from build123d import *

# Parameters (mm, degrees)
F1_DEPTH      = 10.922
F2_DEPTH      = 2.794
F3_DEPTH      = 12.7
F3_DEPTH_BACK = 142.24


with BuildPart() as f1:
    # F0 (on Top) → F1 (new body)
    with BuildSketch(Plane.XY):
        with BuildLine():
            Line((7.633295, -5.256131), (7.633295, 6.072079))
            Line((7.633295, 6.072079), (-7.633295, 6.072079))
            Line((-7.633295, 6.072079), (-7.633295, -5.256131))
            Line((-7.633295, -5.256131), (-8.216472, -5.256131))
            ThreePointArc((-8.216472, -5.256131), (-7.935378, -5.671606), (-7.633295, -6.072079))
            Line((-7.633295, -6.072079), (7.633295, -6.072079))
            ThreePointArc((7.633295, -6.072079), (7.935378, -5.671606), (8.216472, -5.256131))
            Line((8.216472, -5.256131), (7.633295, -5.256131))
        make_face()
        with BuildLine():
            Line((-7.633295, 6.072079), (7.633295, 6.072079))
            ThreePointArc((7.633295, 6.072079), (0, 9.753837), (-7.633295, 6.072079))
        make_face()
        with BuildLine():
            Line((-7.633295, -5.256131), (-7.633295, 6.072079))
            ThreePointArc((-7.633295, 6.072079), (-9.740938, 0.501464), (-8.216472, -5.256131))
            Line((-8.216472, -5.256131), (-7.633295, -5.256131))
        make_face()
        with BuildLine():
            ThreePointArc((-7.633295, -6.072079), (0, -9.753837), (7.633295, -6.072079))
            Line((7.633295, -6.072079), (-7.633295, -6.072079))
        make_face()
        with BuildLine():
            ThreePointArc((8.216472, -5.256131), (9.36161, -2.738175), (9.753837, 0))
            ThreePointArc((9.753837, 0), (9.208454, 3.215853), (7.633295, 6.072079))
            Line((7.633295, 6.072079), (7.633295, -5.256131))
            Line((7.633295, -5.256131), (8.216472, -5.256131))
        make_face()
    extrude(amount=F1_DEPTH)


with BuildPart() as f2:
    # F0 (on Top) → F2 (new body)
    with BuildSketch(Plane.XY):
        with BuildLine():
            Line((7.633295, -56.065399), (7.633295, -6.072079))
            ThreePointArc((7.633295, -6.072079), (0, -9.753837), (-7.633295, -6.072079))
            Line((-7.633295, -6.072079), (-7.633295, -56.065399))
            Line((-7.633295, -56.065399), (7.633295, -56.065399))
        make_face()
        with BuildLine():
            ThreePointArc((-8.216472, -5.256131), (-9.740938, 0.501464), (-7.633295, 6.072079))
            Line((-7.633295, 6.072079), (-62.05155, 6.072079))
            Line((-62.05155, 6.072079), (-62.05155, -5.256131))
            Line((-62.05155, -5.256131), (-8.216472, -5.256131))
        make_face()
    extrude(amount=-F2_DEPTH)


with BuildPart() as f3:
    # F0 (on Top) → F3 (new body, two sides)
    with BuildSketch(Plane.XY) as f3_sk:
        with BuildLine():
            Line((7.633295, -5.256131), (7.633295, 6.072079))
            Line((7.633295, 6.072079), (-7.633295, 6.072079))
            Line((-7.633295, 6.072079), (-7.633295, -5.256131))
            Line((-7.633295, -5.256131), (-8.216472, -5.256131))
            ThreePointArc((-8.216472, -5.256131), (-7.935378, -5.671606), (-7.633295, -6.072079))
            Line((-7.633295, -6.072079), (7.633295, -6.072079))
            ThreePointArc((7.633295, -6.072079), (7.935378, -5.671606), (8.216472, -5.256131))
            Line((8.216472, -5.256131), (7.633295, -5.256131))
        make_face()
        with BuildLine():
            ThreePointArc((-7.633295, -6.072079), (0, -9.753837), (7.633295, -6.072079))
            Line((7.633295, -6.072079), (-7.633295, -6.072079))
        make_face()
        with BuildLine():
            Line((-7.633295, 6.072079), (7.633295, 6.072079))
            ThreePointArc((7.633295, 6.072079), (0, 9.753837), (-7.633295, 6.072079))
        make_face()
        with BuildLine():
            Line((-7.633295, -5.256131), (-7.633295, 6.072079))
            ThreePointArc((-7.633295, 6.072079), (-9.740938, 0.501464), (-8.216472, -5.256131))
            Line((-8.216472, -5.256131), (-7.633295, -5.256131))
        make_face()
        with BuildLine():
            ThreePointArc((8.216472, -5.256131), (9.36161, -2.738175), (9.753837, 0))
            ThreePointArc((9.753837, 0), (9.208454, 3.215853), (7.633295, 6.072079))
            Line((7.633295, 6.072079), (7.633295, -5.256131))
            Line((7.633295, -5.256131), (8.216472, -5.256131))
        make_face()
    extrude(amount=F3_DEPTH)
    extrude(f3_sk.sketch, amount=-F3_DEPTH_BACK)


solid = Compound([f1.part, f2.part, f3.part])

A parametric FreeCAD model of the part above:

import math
import FreeCAD as App
import Part
import Sketcher
from FreeCAD import Vector
Q = App.Units.Quantity

doc = App.newDocument("Part")
body = doc.addObject("PartDesign::Body", "Body")

# Sketch on XY plane
sketch1 = body.newObject("Sketcher::SketchObject", "Sketch")
sketch1.AttachmentSupport = (doc.getObject("XY_Plane"), [""])
sketch1.MapMode = "FlatFace"
sketch1.addGeometry([
    Part.ArcOfCircle(Part.Circle(Vector(0, 0, 0), Vector(0, 0, 1), 9.753837), math.radians(38.501296), math.radians(141.498704)),  # 0
    Part.ArcOfCircle(Part.Circle(Vector(-0.000002, 0.000001, 0), Vector(0, 0, 1), 9.753835), math.radians(141.498698), math.radians(212.607324)),  # 1
    Part.ArcOfCircle(Part.Circle(Vector(-0.000251, -0.000186, 0), Vector(0, 0, 1), 9.753525), math.radians(-147.392812), math.radians(-141.498641)),  # 2
    Part.ArcOfCircle(Part.Circle(Vector(0, 0, 0), Vector(0, 0, 1), 9.753837), math.radians(-141.498704), math.radians(-38.501296)),  # 3
    Part.ArcOfCircle(Part.Circle(Vector(0.000251, -0.000186, 0), Vector(0, 0, 1), 9.753525), math.radians(-38.501359), math.radians(-32.607188)),  # 4
    Part.ArcOfCircle(Part.Circle(Vector(0.000017, -0.000004, 0), Vector(0, 0, 1), 9.75382), math.radians(-32.607348), math.radians(0.000023)),  # 5
    Part.ArcOfCircle(Part.Circle(Vector(0, 0, 0), Vector(0, 0, 1), 9.753837), math.radians(0.000001), math.radians(38.501296)),  # 6
], False)
sketch1.addConstraint([
    Sketcher.Constraint("Coincident", 0, 2, 1, 1),
    Sketcher.Constraint("Coincident", 1, 2, 2, 1),
    Sketcher.Constraint("Coincident", 2, 2, 3, 1),
    Sketcher.Constraint("Coincident", 3, 2, 4, 1),
    Sketcher.Constraint("Coincident", 4, 2, 5, 1),
    Sketcher.Constraint("Coincident", 5, 2, 6, 1),
    Sketcher.Constraint("Coincident", 6, 2, 0, 1),
    Sketcher.Constraint("Coincident", 0, 3, -1, 1),
    Sketcher.Constraint("Coincident", 1, 3, -1, 1),
    Sketcher.Constraint("Coincident", 3, 3, -1, 1),
    Sketcher.Constraint("Coincident", 6, 3, -1, 1),
    Sketcher.Constraint("PointOnObject", 5, 2, -1),
    Sketcher.Constraint("Radius", 5, 9.75382),
    Sketcher.Constraint("Radius", 0, 9.753837),
    Sketcher.Constraint("Radius", 2, 9.753525),
    Sketcher.Constraint("Radius", 3, 9.753837),
    Sketcher.Constraint("Radius", 4, 9.753525),
    Sketcher.Constraint("DistanceX", 2, 3, 4, 3, 0.000501),
    Sketcher.Constraint("DistanceY", -1, 1, 0, 2, 6.072079),
    Sketcher.Constraint("DistanceY", 1, 2, -1, 1, 5.256131),
    Sketcher.Constraint("DistanceY", 2, 2, -1, 1, 6.072079),
    Sketcher.Constraint("DistanceY", 3, 2, -1, 1, 6.072079),
    Sketcher.Constraint("DistanceX", -1, 1, 4, 2, 8.216472),
    Sketcher.Constraint("DistanceY", -1, 1, 6, 2, 6.072079),
])
pad1 = body.newObject("PartDesign::Pad", "Pad")
pad1.Profile = sketch1
pad1.Length = Q("0.43 in")
body2 = doc.addObject("PartDesign::Body", "Body001")
body2.AllowCompound = True

# Sketch on XY plane
sketch2 = body2.newObject("Sketcher::SketchObject", "Sketch001")
sketch2.AttachmentSupport = (doc.getObject("XY_Plane001"), [""])
sketch2.MapMode = "FlatFace"
sketch2.addGeometry([
    Part.LineSegment(Vector(8, -56, 0), Vector(8, -6, 0)),  # 0
    Part.ArcOfCircle(Part.Circle(Vector(0, 0, 0), Vector(0, 0, 1), 10), math.radians(-141), math.radians(-39)),  # 1
    Part.LineSegment(Vector(-8, -6, 0), Vector(-8, -56, 0)),  # 2
    Part.LineSegment(Vector(-8, -56, 0), Vector(8, -56, 0)),  # 3
    Part.ArcOfCircle(Part.Circle(Vector(0, 0, 0), Vector(0, 0, 1), 10), math.radians(141), math.radians(213)),  # 4
    Part.LineSegment(Vector(-8, 6, 0), Vector(-62, 6, 0)),  # 5
    Part.LineSegment(Vector(-62, 6, 0), Vector(-62, -5, 0)),  # 6
    Part.LineSegment(Vector(-62, -5, 0), Vector(-8, -5, 0)),  # 7
], False)
sketch2.addConstraint([
    Sketcher.Constraint("Coincident", 0, 2, 1, 2),
    Sketcher.Constraint("Coincident", 1, 1, 2, 1),
    Sketcher.Constraint("Coincident", 2, 2, 3, 1),
    Sketcher.Constraint("Coincident", 3, 2, 0, 1),
    Sketcher.Constraint("Coincident", 4, 1, 5, 1),
    Sketcher.Constraint("Coincident", 5, 2, 6, 1),
    Sketcher.Constraint("Coincident", 6, 2, 7, 1),
    Sketcher.Constraint("Coincident", 7, 2, 4, 2),
    Sketcher.Constraint("Vertical", 0),
    Sketcher.Constraint("Vertical", 2),
    Sketcher.Constraint("Horizontal", 3),
    Sketcher.Constraint("Horizontal", 5),
    Sketcher.Constraint("Vertical", 6),
    Sketcher.Constraint("Horizontal", 7),
    Sketcher.Constraint("Coincident", 1, 3, -1, 1),
    Sketcher.Constraint("Coincident", 4, 3, -1, 1),
    Sketcher.Constraint("Symmetric", 0, 2, 4, 1, -1, 1),
    Sketcher.Constraint("Horizontal", 0, 2, 1, 1),
    Sketcher.Constraint("Radius", 1, 9.753837),
    Sketcher.Constraint("DistanceX", 3, 1, 3, 2, 15.26659),
    Sketcher.Constraint("DistanceY", 0, 1, 0, 2, 49.99332),
    Sketcher.Constraint("DistanceY", 6, 2, 6, 1, 11.32821),
    Sketcher.Constraint("DistanceX", 5, 2, 5, 1, 54.418255),
])
pad2 = body2.newObject("PartDesign::Pad", "Pad001")
pad2.Profile = sketch2
pad2.Length = Q("0.11 in")
pad2.Reversed = True
body3 = doc.addObject("PartDesign::Body", "Body002")

# Sketch on XY plane
sketch3 = body3.newObject("Sketcher::SketchObject", "Sketch002")
sketch3.AttachmentSupport = (doc.getObject("XY_Plane002"), [""])
sketch3.MapMode = "FlatFace"
sketch3.addGeometry([
    Part.ArcOfCircle(Part.Circle(Vector(0, 0, 0), Vector(0, 0, 1), 9.753837), math.radians(38.501296), math.radians(141.498704)),  # 0
    Part.ArcOfCircle(Part.Circle(Vector(-0.000002, 0.000001, 0), Vector(0, 0, 1), 9.753835), math.radians(141.498698), math.radians(212.607324)),  # 1
    Part.ArcOfCircle(Part.Circle(Vector(-0.000251, -0.000186, 0), Vector(0, 0, 1), 9.753525), math.radians(-147.392812), math.radians(-141.498641)),  # 2
    Part.ArcOfCircle(Part.Circle(Vector(0, 0, 0), Vector(0, 0, 1), 9.753837), math.radians(-141.498704), math.radians(-38.501296)),  # 3
    Part.ArcOfCircle(Part.Circle(Vector(0.000251, -0.000186, 0), Vector(0, 0, 1), 9.753525), math.radians(-38.501359), math.radians(-32.607188)),  # 4
    Part.ArcOfCircle(Part.Circle(Vector(0.000017, -0.000004, 0), Vector(0, 0, 1), 9.75382), math.radians(-32.607348), math.radians(0.000023)),  # 5
    Part.ArcOfCircle(Part.Circle(Vector(0, 0, 0), Vector(0, 0, 1), 9.753837), math.radians(0.000001), math.radians(38.501296)),  # 6
], False)
sketch3.addConstraint([
    Sketcher.Constraint("Coincident", 0, 2, 1, 1),
    Sketcher.Constraint("Coincident", 1, 2, 2, 1),
    Sketcher.Constraint("Coincident", 2, 2, 3, 1),
    Sketcher.Constraint("Coincident", 3, 2, 4, 1),
    Sketcher.Constraint("Coincident", 4, 2, 5, 1),
    Sketcher.Constraint("Coincident", 5, 2, 6, 1),
    Sketcher.Constraint("Coincident", 6, 2, 0, 1),
    Sketcher.Constraint("Coincident", 0, 3, -1, 1),
    Sketcher.Constraint("Coincident", 1, 3, -1, 1),
    Sketcher.Constraint("Coincident", 3, 3, -1, 1),
    Sketcher.Constraint("Coincident", 6, 3, -1, 1),
    Sketcher.Constraint("PointOnObject", 5, 2, -1),
    Sketcher.Constraint("Radius", 5, 9.75382),
    Sketcher.Constraint("Radius", 0, 9.753837),
    Sketcher.Constraint("Radius", 2, 9.753525),
    Sketcher.Constraint("Radius", 3, 9.753837),
    Sketcher.Constraint("Radius", 4, 9.753525),
    Sketcher.Constraint("DistanceX", 2, 3, 4, 3, 0.000501),
    Sketcher.Constraint("DistanceY", -1, 1, 0, 2, 6.072079),
    Sketcher.Constraint("DistanceY", 1, 2, -1, 1, 5.256131),
    Sketcher.Constraint("DistanceY", 2, 2, -1, 1, 6.072079),
    Sketcher.Constraint("DistanceY", 3, 2, -1, 1, 6.072079),
    Sketcher.Constraint("DistanceX", -1, 1, 4, 2, 8.216472),
    Sketcher.Constraint("DistanceY", -1, 1, 6, 2, 6.072079),
])
pad3 = body3.newObject("PartDesign::Pad", "Pad002")
pad3.Profile = sketch3
pad3.Type = "TwoLengths"
pad3.Length = Q("0.5 in")
pad3.Length2 = Q("5.6 in")

doc.recompute()
